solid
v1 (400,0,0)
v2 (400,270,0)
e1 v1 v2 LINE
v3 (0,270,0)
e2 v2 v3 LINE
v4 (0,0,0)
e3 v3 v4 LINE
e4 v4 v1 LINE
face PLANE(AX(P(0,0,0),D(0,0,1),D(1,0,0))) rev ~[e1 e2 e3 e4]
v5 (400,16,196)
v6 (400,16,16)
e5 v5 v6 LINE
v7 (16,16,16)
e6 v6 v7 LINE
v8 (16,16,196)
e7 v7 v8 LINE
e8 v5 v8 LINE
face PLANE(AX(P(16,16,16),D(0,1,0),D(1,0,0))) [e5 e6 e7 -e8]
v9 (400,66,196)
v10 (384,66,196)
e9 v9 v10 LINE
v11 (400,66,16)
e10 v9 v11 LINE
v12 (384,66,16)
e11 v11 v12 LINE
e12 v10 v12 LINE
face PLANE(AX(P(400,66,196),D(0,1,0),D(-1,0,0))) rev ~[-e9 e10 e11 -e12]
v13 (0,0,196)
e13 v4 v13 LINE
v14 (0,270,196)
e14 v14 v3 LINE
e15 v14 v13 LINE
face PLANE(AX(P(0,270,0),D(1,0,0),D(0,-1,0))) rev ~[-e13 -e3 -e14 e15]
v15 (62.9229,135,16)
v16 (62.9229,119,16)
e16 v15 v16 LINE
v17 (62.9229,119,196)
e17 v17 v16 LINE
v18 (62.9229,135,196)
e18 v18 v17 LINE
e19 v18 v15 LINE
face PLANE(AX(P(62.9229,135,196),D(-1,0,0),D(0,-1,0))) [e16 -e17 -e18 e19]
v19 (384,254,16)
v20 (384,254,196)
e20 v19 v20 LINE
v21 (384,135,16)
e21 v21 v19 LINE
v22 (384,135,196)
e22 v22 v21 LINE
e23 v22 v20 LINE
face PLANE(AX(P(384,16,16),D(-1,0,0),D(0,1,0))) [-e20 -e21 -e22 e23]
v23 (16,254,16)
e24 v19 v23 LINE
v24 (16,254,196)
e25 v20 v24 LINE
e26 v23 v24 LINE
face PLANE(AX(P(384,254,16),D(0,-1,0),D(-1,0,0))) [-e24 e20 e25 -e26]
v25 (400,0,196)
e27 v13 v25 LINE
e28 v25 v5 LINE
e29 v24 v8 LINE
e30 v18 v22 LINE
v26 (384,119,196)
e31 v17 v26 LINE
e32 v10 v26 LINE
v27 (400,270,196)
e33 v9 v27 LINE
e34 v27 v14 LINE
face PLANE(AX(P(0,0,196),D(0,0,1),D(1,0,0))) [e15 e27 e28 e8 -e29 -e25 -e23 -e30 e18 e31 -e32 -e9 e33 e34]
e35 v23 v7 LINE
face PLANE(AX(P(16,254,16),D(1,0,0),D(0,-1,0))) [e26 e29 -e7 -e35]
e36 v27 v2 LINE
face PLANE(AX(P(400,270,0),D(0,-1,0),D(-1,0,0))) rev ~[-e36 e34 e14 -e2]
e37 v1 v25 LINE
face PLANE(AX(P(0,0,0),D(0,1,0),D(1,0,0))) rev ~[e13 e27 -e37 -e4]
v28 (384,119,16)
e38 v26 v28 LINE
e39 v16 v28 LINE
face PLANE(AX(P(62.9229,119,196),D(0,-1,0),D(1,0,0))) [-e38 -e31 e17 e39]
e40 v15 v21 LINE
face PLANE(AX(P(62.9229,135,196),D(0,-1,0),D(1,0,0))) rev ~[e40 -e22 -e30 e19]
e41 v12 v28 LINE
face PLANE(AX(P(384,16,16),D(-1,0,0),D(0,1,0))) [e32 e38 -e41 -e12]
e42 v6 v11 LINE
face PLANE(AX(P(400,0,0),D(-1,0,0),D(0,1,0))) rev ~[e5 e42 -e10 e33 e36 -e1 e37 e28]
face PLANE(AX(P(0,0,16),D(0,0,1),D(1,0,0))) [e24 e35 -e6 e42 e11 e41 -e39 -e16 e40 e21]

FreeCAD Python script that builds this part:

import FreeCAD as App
import Part
import Sketcher
from FreeCAD import Vector
Q = App.Units.Quantity


def add_polygon(sketch, points):
    """Adds a closed chain of lines whose ends are joined by coincident constraints."""
    first, n = sketch.GeometryCount, len(points)
    for a, b in zip(points, points[1:] + points[:1]):
        sketch.addGeometry(Part.LineSegment(App.Vector(*a, 0), App.Vector(*b, 0)), False)
    for i in range(n):
        sketch.addConstraint(Sketcher.Constraint("Coincident", first + i, 2, first + (i + 1) % n, 1))

doc = App.newDocument("Part")
params = doc.addObject("Spreadsheet::Sheet", "Params")
for row, (alias, value) in enumerate([
    ("sketch1_width", "400 mm"),
    ("sketch1_height", "270 mm"),
    ("pad1_length", "16 mm"),
    ("sketch2_width", "400 mm"),
    ("sketch2_height", "270 mm"),
    ("pad2_length", "180 mm"),
    ("sketch3_height", "50 mm"),
    ("sketch3_width", "16 mm"),
    ("pocket1_length", "180 mm"),
    ("sketch4_height", "16 mm"),
    ("pad3_length", "180 mm"),
], start=1):
    params.set(f"A{row}", alias)
    params.set(f"B{row}", "=" + value)
    params.setAlias(f"B{row}", alias)

body = doc.addObject("PartDesign::Body", "Body")

# Sketch on XY plane
sketch1 = body.newObject("Sketcher::SketchObject", "Sketch")
sketch1.AttachmentSupport = (doc.getObject("XY_Plane"), [""])
sketch1.MapMode = "FlatFace"
add_polygon(sketch1, [(0, 270), (0, 0), (400, 0), (400, 270)])  # lines 0-3
sketch1.addConstraint(Sketcher.Constraint("Vertical", 0))
sketch1.addConstraint(Sketcher.Constraint("Horizontal", 1))
sketch1.addConstraint(Sketcher.Constraint("Vertical", 2))
sketch1.addConstraint(Sketcher.Constraint("Horizontal", 3))
sketch1.addConstraint(Sketcher.Constraint("Coincident", 0, 2, -1, 1))
sketch1.addConstraint(Sketcher.Constraint("DistanceX", 1, 1, 1, 2, Q("400 mm")))
sketch1.addConstraint(Sketcher.Constraint("DistanceY", 0, 2, 0, 1, Q("270 mm")))
sketch1.setExpression("Constraints[9]", "Params.sketch1_width")
sketch1.setExpression("Constraints[10]", "Params.sketch1_height")
pad1 = body.newObject("PartDesign::Pad", "Pad")
pad1.Profile = sketch1
pad1.setExpression("Length", "Params.pad1_length")

# Sketch on XY plane
sketch2 = body.newObject("Sketcher::SketchObject", "Sketch001")
sketch2.AttachmentSupport = (doc.getObject("XY_Plane"), [""])
sketch2.MapMode = "FlatFace"
sketch2.AttachmentOffset = App.Placement(Vector(0, 0, 16), App.Rotation())
add_polygon(sketch2, [(0, 270), (0, 0), (400, 0), (400, 270)])  # lines 0-3
add_polygon(sketch2, [(384, 16), (16, 16), (16, 254), (384, 254)])  # lines 4-7
sketch2.addConstraint(Sketcher.Constraint("Vertical", 0))
sketch2.addConstraint(Sketcher.Constraint("Horizontal", 1))
sketch2.addConstraint(Sketcher.Constraint("Vertical", 2))
sketch2.addConstraint(Sketcher.Constraint("Horizontal", 3))
sketch2.addConstraint(Sketcher.Constraint("Horizontal", 4))
sketch2.addConstraint(Sketcher.Constraint("Vertical", 5))
sketch2.addConstraint(Sketcher.Constraint("Horizontal", 6))
sketch2.addConstraint(Sketcher.Constraint("Vertical", 7))
sketch2.addConstraint(Sketcher.Constraint("Coincident", 0, 2, -1, 1))
sketch2.addConstraint(Sketcher.Constraint("DistanceX", -1, 1, 4, 2, Q("16 mm")))
sketch2.addConstraint(Sketcher.Constraint("DistanceY", -1, 1, 4, 2, Q("16 mm")))
sketch2.addConstraint(Sketcher.Constraint("DistanceY", 5, 2, 3, 2, Q("16 mm")))
sketch2.addConstraint(Sketcher.Constraint("DistanceX", 6, 2, 2, 2, Q("16 mm")))
sketch2.addConstraint(Sketcher.Constraint("DistanceX", 1, 1, 1, 2, Q("400 mm")))
sketch2.addConstraint(Sketcher.Constraint("DistanceY", 0, 2, 0, 1, Q("270 mm")))
sketch2.setExpression("Constraints[21]", "Params.sketch2_width")
sketch2.setExpression("Constraints[22]", "Params.sketch2_height")
pad2 = body.newObject("PartDesign::Pad", "Pad001")
pad2.Profile = sketch2
pad2.setExpression("Length", "Params.pad2_length")

# Sketch on XY plane
sketch3 = body.newObject("Sketcher::SketchObject", "Sketch002")
sketch3.AttachmentSupport = (doc.getObject("XY_Plane"), [""])
sketch3.MapMode = "FlatFace"
sketch3.AttachmentOffset = App.Placement(Vector(0, 0, 196), App.Rotation())
add_polygon(sketch3, [(384, 66), (384, 16), (400, 16), (400, 66)])  # lines 0-3
sketch3.addConstraint(Sketcher.Constraint("Vertical", 0))
sketch3.addConstraint(Sketcher.Constraint("Horizontal", 1))
sketch3.addConstraint(Sketcher.Constraint("Vertical", 2))
sketch3.addConstraint(Sketcher.Constraint("Horizontal", 3))
sketch3.addConstraint(Sketcher.Constraint("DistanceY", 0, 2, 0, 1, Q("50 mm")))
sketch3.addConstraint(Sketcher.Constraint("DistanceX", 1, 1, 1, 2, Q("16 mm")))
sketch3.addConstraint(Sketcher.Constraint("DistanceX", -1, 1, 0, 2, Q("384 mm")))
sketch3.addConstraint(Sketcher.Constraint("DistanceY", -1, 1, 0, 2, Q("16 mm")))
sketch3.setExpression("Constraints[8]", "Params.sketch3_height")
sketch3.setExpression("Constraints[9]", "Params.sketch3_width")
pocket1 = body.newObject("PartDesign::Pocket", "Pocket")
pocket1.Profile = sketch3
pocket1.setExpression("Length", "Params.pocket1_length")

# Sketch on XY plane
sketch4 = body.newObject("Sketcher::SketchObject", "Sketch003")
sketch4.AttachmentSupport = (doc.getObject("XY_Plane"), [""])
sketch4.MapMode = "FlatFace"
sketch4.AttachmentOffset = App.Placement(Vector(0, 0, 196), App.Rotation())
add_polygon(sketch4, [(384, 135), (63, 135), (63, 119), (384, 119)])  # lines 0-3
sketch4.addConstraint(Sketcher.Constraint("Horizontal", 0))
sketch4.addConstraint(Sketcher.Constraint("Vertical", 1))
sketch4.addConstraint(Sketcher.Constraint("Horizontal", 2))
sketch4.addConstraint(Sketcher.Constraint("Vertical", 3))
sketch4.addConstraint(Sketcher.Constraint("DistanceY", 1, 2, 1, 1, Q("16 mm")))
sketch4.addConstraint(Sketcher.Constraint("DistanceY", -1, 1, 0, 2, Q("135 mm")))
sketch4.addConstraint(Sketcher.Constraint("DistanceX", -1, 1, 2, 2, Q("384 mm")))
sketch4.addConstraint(Sketcher.Constraint("DistanceX", 0, 2, 0, 1, Q("321.077 mm")))
sketch4.setExpression("Constraints[8]", "Params.sketch4_height")
pad3 = body.newObject("PartDesign::Pad", "Pad002")
pad3.Profile = sketch4
pad3.setExpression("Length", "Params.pad3_length")
pad3.Reversed = True

doc.recompute()
